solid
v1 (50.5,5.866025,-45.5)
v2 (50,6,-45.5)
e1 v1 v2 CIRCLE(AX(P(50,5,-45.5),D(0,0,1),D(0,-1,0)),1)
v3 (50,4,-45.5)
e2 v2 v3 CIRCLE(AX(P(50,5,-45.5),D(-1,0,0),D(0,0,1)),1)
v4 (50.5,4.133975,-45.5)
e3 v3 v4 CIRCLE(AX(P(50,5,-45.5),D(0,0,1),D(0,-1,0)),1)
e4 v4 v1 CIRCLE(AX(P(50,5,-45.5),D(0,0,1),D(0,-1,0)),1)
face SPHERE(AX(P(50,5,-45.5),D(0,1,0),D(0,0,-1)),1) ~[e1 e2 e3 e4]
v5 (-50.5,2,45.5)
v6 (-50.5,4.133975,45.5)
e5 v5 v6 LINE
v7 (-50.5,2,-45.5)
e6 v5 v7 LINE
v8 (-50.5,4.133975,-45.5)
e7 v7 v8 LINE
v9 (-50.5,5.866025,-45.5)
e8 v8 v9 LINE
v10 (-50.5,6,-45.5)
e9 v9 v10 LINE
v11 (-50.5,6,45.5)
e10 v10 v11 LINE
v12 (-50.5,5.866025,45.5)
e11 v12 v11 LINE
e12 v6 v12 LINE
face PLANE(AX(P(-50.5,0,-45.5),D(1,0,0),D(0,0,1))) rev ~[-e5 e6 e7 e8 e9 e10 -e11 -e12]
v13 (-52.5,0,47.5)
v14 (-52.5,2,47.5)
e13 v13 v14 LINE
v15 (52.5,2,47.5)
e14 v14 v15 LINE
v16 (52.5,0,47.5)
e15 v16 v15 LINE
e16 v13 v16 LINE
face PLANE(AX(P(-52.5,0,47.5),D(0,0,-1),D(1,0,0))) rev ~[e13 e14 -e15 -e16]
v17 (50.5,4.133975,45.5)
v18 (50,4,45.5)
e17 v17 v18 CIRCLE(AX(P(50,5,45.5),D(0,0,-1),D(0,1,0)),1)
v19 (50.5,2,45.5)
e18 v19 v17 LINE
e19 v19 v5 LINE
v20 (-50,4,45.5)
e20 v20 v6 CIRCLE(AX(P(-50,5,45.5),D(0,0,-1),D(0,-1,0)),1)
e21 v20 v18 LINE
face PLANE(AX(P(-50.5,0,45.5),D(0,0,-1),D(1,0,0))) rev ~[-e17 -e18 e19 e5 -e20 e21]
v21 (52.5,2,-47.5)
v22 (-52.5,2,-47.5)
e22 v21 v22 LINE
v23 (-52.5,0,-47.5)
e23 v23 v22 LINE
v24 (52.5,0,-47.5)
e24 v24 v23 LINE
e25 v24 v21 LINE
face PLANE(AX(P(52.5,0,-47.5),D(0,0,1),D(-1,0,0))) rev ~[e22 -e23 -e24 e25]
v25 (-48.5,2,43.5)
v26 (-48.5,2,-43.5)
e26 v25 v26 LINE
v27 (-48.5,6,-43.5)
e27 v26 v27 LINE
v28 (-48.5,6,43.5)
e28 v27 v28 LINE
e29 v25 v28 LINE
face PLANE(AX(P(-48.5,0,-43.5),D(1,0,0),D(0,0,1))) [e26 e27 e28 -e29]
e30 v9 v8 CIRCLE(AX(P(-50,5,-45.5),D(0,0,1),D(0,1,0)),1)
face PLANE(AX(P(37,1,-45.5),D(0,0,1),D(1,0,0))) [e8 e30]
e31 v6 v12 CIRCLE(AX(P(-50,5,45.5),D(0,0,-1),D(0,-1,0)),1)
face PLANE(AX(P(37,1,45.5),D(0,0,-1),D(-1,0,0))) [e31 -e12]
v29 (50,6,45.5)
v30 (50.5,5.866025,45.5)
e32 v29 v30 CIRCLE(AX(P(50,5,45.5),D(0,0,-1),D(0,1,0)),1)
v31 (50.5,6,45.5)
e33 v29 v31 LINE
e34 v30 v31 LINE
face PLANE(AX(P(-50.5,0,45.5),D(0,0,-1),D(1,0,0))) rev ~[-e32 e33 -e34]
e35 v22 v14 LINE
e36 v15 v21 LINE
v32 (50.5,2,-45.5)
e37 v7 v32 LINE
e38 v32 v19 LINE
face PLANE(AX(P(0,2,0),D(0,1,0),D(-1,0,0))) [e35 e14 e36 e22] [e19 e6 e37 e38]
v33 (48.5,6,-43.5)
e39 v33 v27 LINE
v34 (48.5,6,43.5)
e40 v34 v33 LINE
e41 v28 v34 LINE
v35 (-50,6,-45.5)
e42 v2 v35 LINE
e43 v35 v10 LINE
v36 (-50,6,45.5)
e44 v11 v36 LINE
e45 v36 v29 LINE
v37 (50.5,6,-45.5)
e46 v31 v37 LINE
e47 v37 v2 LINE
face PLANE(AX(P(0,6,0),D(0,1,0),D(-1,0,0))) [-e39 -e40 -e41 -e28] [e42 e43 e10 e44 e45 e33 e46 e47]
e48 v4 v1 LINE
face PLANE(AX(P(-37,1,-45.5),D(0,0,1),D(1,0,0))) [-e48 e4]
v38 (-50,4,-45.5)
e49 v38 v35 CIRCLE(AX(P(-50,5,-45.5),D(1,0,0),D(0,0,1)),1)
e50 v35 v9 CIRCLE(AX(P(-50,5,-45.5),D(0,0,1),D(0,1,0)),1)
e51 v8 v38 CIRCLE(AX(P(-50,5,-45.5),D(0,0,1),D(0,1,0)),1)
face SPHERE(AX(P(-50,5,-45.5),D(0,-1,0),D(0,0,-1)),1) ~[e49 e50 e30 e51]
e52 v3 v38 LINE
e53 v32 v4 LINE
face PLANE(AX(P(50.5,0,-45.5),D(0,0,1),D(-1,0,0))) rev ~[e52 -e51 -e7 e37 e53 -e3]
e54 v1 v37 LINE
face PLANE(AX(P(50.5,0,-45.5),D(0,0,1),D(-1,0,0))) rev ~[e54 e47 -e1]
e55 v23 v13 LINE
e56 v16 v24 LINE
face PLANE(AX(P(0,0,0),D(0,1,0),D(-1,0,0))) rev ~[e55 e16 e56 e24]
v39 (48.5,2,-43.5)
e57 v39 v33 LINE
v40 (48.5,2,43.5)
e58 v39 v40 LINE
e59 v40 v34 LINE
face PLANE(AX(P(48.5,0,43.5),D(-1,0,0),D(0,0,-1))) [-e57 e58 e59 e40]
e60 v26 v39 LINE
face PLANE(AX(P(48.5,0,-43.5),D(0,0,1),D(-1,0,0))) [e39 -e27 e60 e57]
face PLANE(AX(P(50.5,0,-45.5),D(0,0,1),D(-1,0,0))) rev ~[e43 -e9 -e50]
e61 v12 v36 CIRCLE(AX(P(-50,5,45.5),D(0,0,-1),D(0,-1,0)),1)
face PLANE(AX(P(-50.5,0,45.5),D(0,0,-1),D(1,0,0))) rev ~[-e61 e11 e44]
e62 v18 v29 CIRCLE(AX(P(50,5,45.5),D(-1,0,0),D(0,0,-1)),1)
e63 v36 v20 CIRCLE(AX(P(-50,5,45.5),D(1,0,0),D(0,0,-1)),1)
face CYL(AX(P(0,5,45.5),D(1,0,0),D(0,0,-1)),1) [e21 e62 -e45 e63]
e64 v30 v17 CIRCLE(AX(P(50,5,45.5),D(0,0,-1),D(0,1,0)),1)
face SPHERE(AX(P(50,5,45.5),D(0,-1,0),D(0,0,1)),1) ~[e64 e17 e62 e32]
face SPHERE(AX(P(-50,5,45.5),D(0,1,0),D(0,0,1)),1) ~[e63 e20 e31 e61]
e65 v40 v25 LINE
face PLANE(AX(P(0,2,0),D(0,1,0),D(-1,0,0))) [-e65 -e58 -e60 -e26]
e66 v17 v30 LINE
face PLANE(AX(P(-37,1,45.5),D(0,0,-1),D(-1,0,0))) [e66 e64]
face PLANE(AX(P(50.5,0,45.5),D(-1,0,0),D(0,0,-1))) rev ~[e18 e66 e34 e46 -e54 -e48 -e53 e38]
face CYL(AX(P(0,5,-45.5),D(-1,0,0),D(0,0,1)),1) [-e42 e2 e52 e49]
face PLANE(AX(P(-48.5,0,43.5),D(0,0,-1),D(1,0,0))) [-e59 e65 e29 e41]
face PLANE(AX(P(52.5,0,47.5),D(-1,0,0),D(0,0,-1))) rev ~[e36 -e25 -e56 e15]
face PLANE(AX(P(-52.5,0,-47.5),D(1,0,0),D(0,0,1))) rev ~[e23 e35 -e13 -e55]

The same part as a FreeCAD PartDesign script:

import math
import FreeCAD as App
import Part
import Sketcher
from FreeCAD import Vector


def add_polygon(sketch, points):
    """Adds a closed chain of lines whose ends are joined by coincident constraints."""
    first, n = sketch.GeometryCount, len(points)
    for a, b in zip(points, points[1:] + points[:1]):
        sketch.addGeometry(Part.LineSegment(App.Vector(*a, 0), App.Vector(*b, 0)), False)
    for i in range(n):
        sketch.addConstraint(Sketcher.Constraint("Coincident", first + i, 2, first + (i + 1) % n, 1))

doc = App.newDocument("Part")
body = doc.addObject("PartDesign::Body", "Body")

# Sketch on XZ plane
sketch1 = body.newObject("Sketcher::SketchObject", "Sketch")
sketch1.AttachmentSupport = (doc.getObject("XZ_Plane"), [""])
sketch1.MapMode = "FlatFace"
add_polygon(sketch1, [(-52, -48), (-52, 48), (52, 48), (52, -48)])  # lines 0-3
sketch1.addConstraint(Sketcher.Constraint("Vertical", 0))
sketch1.addConstraint(Sketcher.Constraint("Horizontal", 1))
sketch1.addConstraint(Sketcher.Constraint("Vertical", 2))
sketch1.addConstraint(Sketcher.Constraint("Horizontal", 3))
sketch1.addConstraint(Sketcher.Constraint("Symmetric", 0, 2, 2, 2, -1, 1))
sketch1.addConstraint(Sketcher.Constraint("DistanceX", 1, 1, 1, 2, 105.0))
sketch1.addConstraint(Sketcher.Constraint("DistanceY", 0, 1, 0, 2, 95.0))
pad1 = body.newObject("PartDesign::Pad", "Pad")
pad1.Profile = sketch1
pad1.Length = 2
pad1.Reversed = True

# Sketch on XZ plane
sketch2 = body.newObject("Sketcher::SketchObject", "Sketch001")
sketch2.AttachmentSupport = (doc.getObject("XZ_Plane"), [""])
sketch2.MapMode = "FlatFace"
add_polygon(sketch2, [(-50, -46), (-50, 46), (50, 46), (50, -46)])  # lines 0-3
add_polygon(sketch2, [(48, 44), (-48, 44), (-48, -44), (48, -44)])  # lines 4-7
sketch2.addConstraint(Sketcher.Constraint("Vertical", 0))
sketch2.addConstraint(Sketcher.Constraint("Horizontal", 1))
sketch2.addConstraint(Sketcher.Constraint("Vertical", 2))
sketch2.addConstraint(Sketcher.Constraint("Horizontal", 3))
sketch2.addConstraint(Sketcher.Constraint("Horizontal", 4))
sketch2.addConstraint(Sketcher.Constraint("Vertical", 5))
sketch2.addConstraint(Sketcher.Constraint("Horizontal", 6))
sketch2.addConstraint(Sketcher.Constraint("Vertical", 7))
sketch2.addConstraint(Sketcher.Constraint("Symmetric", 0, 2, 2, 2, -1, 1))
sketch2.addConstraint(Sketcher.Constraint("Symmetric", 4, 2, 6, 2, -1, 1))
sketch2.addConstraint(Sketcher.Constraint("DistanceX", 0, 2, 4, 2, 2.0))
sketch2.addConstraint(Sketcher.Constraint("DistanceY", 4, 2, 0, 2, 2.0))
sketch2.addConstraint(Sketcher.Constraint("DistanceX", 1, 1, 1, 2, 101.0))
sketch2.addConstraint(Sketcher.Constraint("DistanceY", 0, 1, 0, 2, 91.0))
pad2 = body.newObject("PartDesign::Pad", "Pad001")
pad2.Profile = sketch2
pad2.Length = 6
pad2.Reversed = True

# Sketch on YZ plane
sketch3 = body.newObject("Sketcher::SketchObject", "Sketch002")
sketch3.AttachmentSupport = (doc.getObject("YZ_Plane"), [""])
sketch3.MapMode = "FlatFace"
sketch3.addGeometry(Part.Circle(Vector(5, 45.5, 0), Vector(0, 0, 1), 1), False)
sketch3.addConstraint(Sketcher.Constraint("Diameter", 0, 2.0))
sketch3.addConstraint(Sketcher.Constraint("DistanceX", -1, 1, 0, 3, 5.0))
sketch3.addConstraint(Sketcher.Constraint("DistanceY", -1, 1, 0, 3, 45.5))
pad3 = body.newObject("PartDesign::Pad", "Pad002")
pad3.Profile = sketch3
pad3.Length = 100
pad3.Midplane = True

# Sketch on YZ plane
sketch4 = body.newObject("Sketcher::SketchObject", "Sketch003")
sketch4.AttachmentSupport = (doc.getObject("YZ_Plane"), [""])
sketch4.MapMode = "FlatFace"
sketch4.AttachmentOffset = App.Placement(Vector(0, 0, 50), App.Rotation())
sketch4.addGeometry(Part.LineSegment(Vector(4, 45.5, 0), Vector(6, 45.5, 0)), False)
sketch4.addGeometry(Part.ArcOfCircle(Part.Circle(Vector(5, 45.5, 0), Vector(0, 0, 1), 1), math.radians(0), math.radians(180)), False)
sketch4.addGeometry(Part.LineSegment(Vector(4, 45.5, 0), Vector(6, 45.5, 0)), True)  # axis
sketch4.addConstraint(Sketcher.Constraint("Coincident", 0, 1, 1, 2))
sketch4.addConstraint(Sketcher.Constraint("Coincident", 1, 1, 0, 2))
sketch4.addConstraint(Sketcher.Constraint("Horizontal", 0))
sketch4.addConstraint(Sketcher.Constraint("Horizontal", 2))
sketch4.addConstraint(Sketcher.Constraint("Coincident", 2, 1, 0, 1))
sketch4.addConstraint(Sketcher.Constraint("Horizontal", 1, 3, 0, 1))
sketch4.addConstraint(Sketcher.Constraint("Equal", 0, 2))
sketch4.addConstraint(Sketcher.Constraint("Radius", 1, 1.0))
sketch4.addConstraint(Sketcher.Constraint("DistanceX", -1, 1, 1, 3, 5.0))
sketch4.addConstraint(Sketcher.Constraint("DistanceY", -1, 1, 1, 3, 45.5))
revolution = body.newObject("PartDesign::Revolution", "Revolution")
revolution.Profile = sketch4
revolution.ReferenceAxis = (sketch4, ["Axis0"])
revolution.Angle = 90

# Sketch on YZ plane
sketch5 = body.newObject("Sketcher::SketchObject", "Sketch004")
sketch5.AttachmentSupport = (doc.getObject("YZ_Plane"), [""])
sketch5.MapMode = "FlatFace"
sketch5.AttachmentOffset = App.Placement(Vector(0, 0, -50), App.Rotation())
sketch5.addGeometry(Part.LineSegment(Vector(6, 45.5, 0), Vector(4, 45.5, 0)), False)
sketch5.addGeometry(Part.ArcOfCircle(Part.Circle(Vector(5, 45.5, 0), Vector(0, 0, 1), 1), math.radians(0), math.radians(180)), False)
sketch5.addGeometry(Part.LineSegment(Vector(6, 45.5, 0), Vector(4, 45.5, 0)), True)  # axis
sketch5.addConstraint(Sketcher.Constraint("Coincident", 0, 1, 1, 1))
sketch5.addConstraint(Sketcher.Constraint("Coincident", 1, 2, 0, 2))
sketch5.addConstraint(Sketcher.Constraint("Horizontal", 0))
sketch5.addConstraint(Sketcher.Constraint("Horizontal", 2))
sketch5.addConstraint(Sketcher.Constraint("Coincident", 2, 1, 0, 1))
sketch5.addConstraint(Sketcher.Constraint("Horizontal", 1, 3, 0, 1))
sketch5.addConstraint(Sketcher.Constraint("Equal", 0, 2))
sketch5.addConstraint(Sketcher.Constraint("Radius", 1, 1.0))
sketch5.addConstraint(Sketcher.Constraint("DistanceX", -1, 1, 1, 3, 5.0))
sketch5.addConstraint(Sketcher.Constraint("DistanceY", -1, 1, 1, 3, 45.5))
revolution2 = body.newObject("PartDesign::Revolution", "Revolution001")
revolution2.Profile = sketch5
revolution2.ReferenceAxis = (sketch5, ["Axis0"])
revolution2.Angle = 90
doc.recompute()

polarpattern = body.newObject("PartDesign::PolarPattern", "PolarPattern")
polarpattern.Originals = [pad3, revolution, revolution2]
polarpattern.Axis = (doc.getObject("Y_Axis"), [""])
polarpattern.Angle = 360
polarpattern.Occurrences = 2
body.Tip = polarpattern

doc.recompute()
